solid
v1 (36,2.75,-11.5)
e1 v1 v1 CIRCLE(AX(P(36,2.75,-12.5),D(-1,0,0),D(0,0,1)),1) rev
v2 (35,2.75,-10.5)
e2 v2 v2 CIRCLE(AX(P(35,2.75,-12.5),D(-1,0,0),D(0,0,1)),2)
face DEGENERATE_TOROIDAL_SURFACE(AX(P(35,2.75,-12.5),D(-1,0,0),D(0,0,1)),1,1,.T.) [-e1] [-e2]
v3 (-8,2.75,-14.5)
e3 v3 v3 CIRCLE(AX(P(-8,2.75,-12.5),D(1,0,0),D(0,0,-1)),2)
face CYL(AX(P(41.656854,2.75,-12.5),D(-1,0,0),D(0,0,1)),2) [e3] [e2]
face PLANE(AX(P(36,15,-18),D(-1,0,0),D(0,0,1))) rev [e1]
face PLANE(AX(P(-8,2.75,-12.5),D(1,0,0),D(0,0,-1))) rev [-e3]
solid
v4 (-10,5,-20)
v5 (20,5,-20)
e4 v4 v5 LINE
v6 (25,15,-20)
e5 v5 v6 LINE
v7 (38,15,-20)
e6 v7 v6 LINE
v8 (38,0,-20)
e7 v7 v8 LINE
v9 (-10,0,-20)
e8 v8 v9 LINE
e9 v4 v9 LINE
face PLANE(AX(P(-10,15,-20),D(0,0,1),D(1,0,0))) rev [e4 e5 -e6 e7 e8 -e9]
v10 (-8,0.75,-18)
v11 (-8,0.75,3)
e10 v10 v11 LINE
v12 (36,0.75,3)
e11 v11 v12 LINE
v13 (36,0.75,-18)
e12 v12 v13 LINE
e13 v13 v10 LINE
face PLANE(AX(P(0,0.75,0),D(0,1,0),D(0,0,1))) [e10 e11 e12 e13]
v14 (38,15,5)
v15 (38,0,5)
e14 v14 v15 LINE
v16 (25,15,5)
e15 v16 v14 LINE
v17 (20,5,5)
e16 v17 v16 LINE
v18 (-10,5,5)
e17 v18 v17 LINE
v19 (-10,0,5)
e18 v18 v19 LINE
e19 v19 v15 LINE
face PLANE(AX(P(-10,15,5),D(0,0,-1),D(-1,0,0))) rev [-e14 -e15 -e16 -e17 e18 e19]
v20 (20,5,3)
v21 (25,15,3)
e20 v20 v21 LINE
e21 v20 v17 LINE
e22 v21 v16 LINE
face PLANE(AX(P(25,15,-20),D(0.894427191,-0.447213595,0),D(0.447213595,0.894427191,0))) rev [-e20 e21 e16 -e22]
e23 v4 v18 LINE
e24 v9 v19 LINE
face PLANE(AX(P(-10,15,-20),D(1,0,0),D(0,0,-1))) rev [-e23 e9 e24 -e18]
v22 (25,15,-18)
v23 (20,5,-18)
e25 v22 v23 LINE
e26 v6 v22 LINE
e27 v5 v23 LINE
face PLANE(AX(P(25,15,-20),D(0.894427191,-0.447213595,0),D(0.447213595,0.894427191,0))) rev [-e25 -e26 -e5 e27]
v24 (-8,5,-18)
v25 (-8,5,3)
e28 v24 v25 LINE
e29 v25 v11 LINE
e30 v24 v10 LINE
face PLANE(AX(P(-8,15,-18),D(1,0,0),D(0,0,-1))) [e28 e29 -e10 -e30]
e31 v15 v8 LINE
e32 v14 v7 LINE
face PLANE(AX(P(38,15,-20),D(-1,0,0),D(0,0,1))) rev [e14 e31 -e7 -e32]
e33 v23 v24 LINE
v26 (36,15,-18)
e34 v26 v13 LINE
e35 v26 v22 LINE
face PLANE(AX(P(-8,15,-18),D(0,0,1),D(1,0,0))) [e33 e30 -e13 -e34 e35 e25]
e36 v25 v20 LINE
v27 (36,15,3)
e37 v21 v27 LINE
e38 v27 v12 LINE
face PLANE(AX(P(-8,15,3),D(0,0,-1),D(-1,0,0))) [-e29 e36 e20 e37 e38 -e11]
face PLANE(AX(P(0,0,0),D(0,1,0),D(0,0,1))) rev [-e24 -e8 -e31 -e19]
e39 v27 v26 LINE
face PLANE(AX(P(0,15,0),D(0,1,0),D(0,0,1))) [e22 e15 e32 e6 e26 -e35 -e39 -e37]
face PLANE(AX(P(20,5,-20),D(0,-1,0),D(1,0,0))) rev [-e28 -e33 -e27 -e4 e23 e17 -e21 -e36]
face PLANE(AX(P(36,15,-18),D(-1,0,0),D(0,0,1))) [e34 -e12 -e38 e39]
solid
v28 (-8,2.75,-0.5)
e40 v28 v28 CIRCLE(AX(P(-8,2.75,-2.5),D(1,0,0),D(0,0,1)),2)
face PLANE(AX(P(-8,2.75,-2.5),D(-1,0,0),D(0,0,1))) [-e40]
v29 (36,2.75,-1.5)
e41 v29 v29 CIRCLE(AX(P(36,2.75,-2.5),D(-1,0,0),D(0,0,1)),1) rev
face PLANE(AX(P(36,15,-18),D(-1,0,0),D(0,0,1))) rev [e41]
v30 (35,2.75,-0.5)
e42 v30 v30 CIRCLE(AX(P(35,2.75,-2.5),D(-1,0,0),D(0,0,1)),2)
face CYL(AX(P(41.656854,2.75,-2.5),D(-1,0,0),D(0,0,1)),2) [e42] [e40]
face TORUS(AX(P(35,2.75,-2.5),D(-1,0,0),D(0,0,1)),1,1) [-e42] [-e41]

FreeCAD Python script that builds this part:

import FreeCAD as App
import Part
import Sketcher

V = App.Vector
Q = App.Units.Quantity


def edges_at(feature, points):
    """Names of the edges that pass closest to the given points."""
    edges = feature.Shape.Edges
    near = lambda p: min(range(len(edges)), key=lambda i: edges[i].distToShape(Part.Vertex(*p))[0])
    return sorted({f"Edge{near(p) + 1}" for p in points})


def add_polygon(sketch, points):
    """Adds a closed chain of lines whose ends are joined by coincident constraints."""
    first, n = sketch.GeometryCount, len(points)
    for a, b in zip(points, points[1:] + points[:1]):
        sketch.addGeometry(Part.LineSegment(App.Vector(*a, 0), App.Vector(*b, 0)), False)
    for i in range(n):
        sketch.addConstraint(Sketcher.Constraint("Coincident", first + i, 2, first + (i + 1) % n, 1))

doc = App.newDocument("Part")
params = doc.addObject("Spreadsheet::Sheet", "Params")
for row, (alias, value) in enumerate([
    ("sketch1_width", "48 mm"),
    ("sketch1_height", "25 mm"),
    ("pad1_length", "15 mm"),
    ("sketch2_width", "35 mm"),
    ("sketch2_width2", "30 mm"),
    ("sketch2_height", "10 mm"),
    ("sketch3_width", "44 mm"),
    ("sketch3_height", "21 mm"),
    ("sketch4_diameter", "4 mm"),
    ("pad2_length", "44 mm"),
    ("fillet_radius", "1 mm"),
    ("sketch5_diameter", "4 mm"),
    ("pad3_length", "44 mm"),
    ("fillet2_radius", "1 mm"),
], start=1):
    params.set(f"A{row}", alias)
    params.set(f"B{row}", "=" + value)
    params.setAlias(f"B{row}", alias)

body = doc.addObject("PartDesign::Body", "Body")

# Sketch on XZ plane
sketch1 = doc.addObject("Sketcher::SketchObject", "Sketch")
body.addObject(sketch1)
sketch1.AttachmentSupport = (doc.XZ_Plane, [""])
sketch1.MapMode = "FlatFace"
add_polygon(sketch1, [(-10, -20), (-10, 5), (38, 5), (38, -20)])  # lines 0-3
sketch1.addConstraint(Sketcher.Constraint("Vertical", 0))
sketch1.addConstraint(Sketcher.Constraint("Horizontal", 1))
sketch1.addConstraint(Sketcher.Constraint("Vertical", 2))
sketch1.addConstraint(Sketcher.Constraint("Horizontal", 3))
sketch1.addConstraint(Sketcher.Constraint("DistanceX", 1, 1, 1, 2, Q("48 mm")))
sketch1.addConstraint(Sketcher.Constraint("DistanceY", 0, 1, 0, 2, Q("25 mm")))
sketch1.addConstraint(Sketcher.Constraint("DistanceX", 0, 2, -1, 1, Q("10 mm")))
sketch1.addConstraint(Sketcher.Constraint("DistanceY", -1, 1, 0, 2, Q("5 mm")))
sketch1.setExpression("Constraints[8]", "Params.sketch1_width")
sketch1.setExpression("Constraints[9]", "Params.sketch1_height")
pad1 = doc.addObject("PartDesign::Pad", "Pad")
body.addObject(pad1)
pad1.Profile = sketch1
pad1.setExpression("Length", "Params.pad1_length")
pad1.Reversed = True

# Sketch on XY plane
sketch2 = doc.addObject("Sketcher::SketchObject", "Sketch001")
body.addObject(sketch2)
sketch2.AttachmentSupport = (doc.XY_Plane, [""])
sketch2.MapMode = "FlatFace"
sketch2.AttachmentOffset = App.Placement(V(0, 0, 5), App.Rotation())
add_polygon(sketch2, [(20, 5), (25, 15), (-10, 15), (-10, 5)])  # lines 0-3
sketch2.addConstraint(Sketcher.Constraint("Horizontal", 1))
sketch2.addConstraint(Sketcher.Constraint("Vertical", 2))
sketch2.addConstraint(Sketcher.Constraint("Horizontal", 3))
sketch2.addConstraint(Sketcher.Constraint("DistanceX", 1, 2, 1, 1, Q("35 mm")))
sketch2.addConstraint(Sketcher.Constraint("DistanceX", 3, 1, 3, 2, Q("30 mm")))
sketch2.addConstraint(Sketcher.Constraint("DistanceY", 2, 2, 2, 1, Q("10 mm")))
sketch2.addConstraint(Sketcher.Constraint("DistanceX", -1, 1, 0, 2, Q("25 mm")))
sketch2.addConstraint(Sketcher.Constraint("DistanceY", -1, 1, 0, 2, Q("15 mm")))
sketch2.setExpression("Constraints[7]", "Params.sketch2_width")
sketch2.setExpression("Constraints[8]", "Params.sketch2_width2")
sketch2.setExpression("Constraints[9]", "Params.sketch2_height")
pocket1 = doc.addObject("PartDesign::Pocket", "Pocket")
body.addObject(pocket1)
pocket1.Profile = sketch2
pocket1.Type = "ThroughAll"

# Sketch on XZ plane
sketch3 = doc.addObject("Sketcher::SketchObject", "Sketch002")
body.addObject(sketch3)
sketch3.AttachmentSupport = (doc.XZ_Plane, [""])
sketch3.MapMode = "FlatFace"
sketch3.AttachmentOffset = App.Placement(V(0, 0, -0.75), App.Rotation())
add_polygon(sketch3, [(-8, -18), (-8, 3), (36, 3), (36, -18)])  # lines 0-3
sketch3.addConstraint(Sketcher.Constraint("Vertical", 0))
sketch3.addConstraint(Sketcher.Constraint("Horizontal", 1))
sketch3.addConstraint(Sketcher.Constraint("Vertical", 2))
sketch3.addConstraint(Sketcher.Constraint("Horizontal", 3))
sketch3.addConstraint(Sketcher.Constraint("DistanceX", 1, 1, 1, 2, Q("44 mm")))
sketch3.addConstraint(Sketcher.Constraint("DistanceY", 0, 1, 0, 2, Q("21 mm")))
sketch3.addConstraint(Sketcher.Constraint("DistanceX", 0, 2, -1, 1, Q("8 mm")))
sketch3.addConstraint(Sketcher.Constraint("DistanceY", -1, 1, 0, 2, Q("3 mm")))
sketch3.setExpression("Constraints[8]", "Params.sketch3_width")
sketch3.setExpression("Constraints[9]", "Params.sketch3_height")
pocket2 = doc.addObject("PartDesign::Pocket", "Pocket001")
body.addObject(pocket2)
pocket2.Profile = sketch3
pocket2.Type = "ThroughAll"
body2 = doc.addObject("PartDesign::Body", "Body001")

# Sketch on YZ plane
sketch4 = doc.addObject("Sketcher::SketchObject", "Sketch003")
body2.addObject(sketch4)
sketch4.AttachmentSupport = (doc.getObject("YZ_Plane001"), [""])
sketch4.MapMode = "FlatFace"
sketch4.AttachmentOffset = App.Placement(V(0, 0, -8), App.Rotation())
sketch4.addGeometry(Part.Circle(V(2.8, -12.5, 0), V(0, 0, 1), 2), False)
sketch4.addConstraint(Sketcher.Constraint("Diameter", 0, Q("4 mm")))
sketch4.addConstraint(Sketcher.Constraint("DistanceY", 0, 3, -1, 1, Q("12.5 mm")))
sketch4.addConstraint(Sketcher.Constraint("DistanceX", -1, 1, 0, 3, Q("2.75 mm")))
sketch4.setExpression("Constraints[0]", "Params.sketch4_diameter")
pad2 = doc.addObject("PartDesign::Pad", "Pad001")
body2.addObject(pad2)
pad2.Profile = sketch4
pad2.setExpression("Length", "Params.pad2_length")
doc.recompute()

fillet = doc.addObject("PartDesign::Fillet", "Fillet")
body2.addObject(fillet)
fillet.Base = (pad2, edges_at(pad2, [(36, 2.75, -10.5)]))
fillet.setExpression("Radius", "Params.fillet_radius")
body3 = doc.addObject("PartDesign::Body", "Body002")

# Sketch on YZ plane
sketch5 = doc.addObject("Sketcher::SketchObject", "Sketch004")
body3.addObject(sketch5)
sketch5.AttachmentSupport = (doc.getObject("YZ_Plane002"), [""])
sketch5.MapMode = "FlatFace"
sketch5.AttachmentOffset = App.Placement(V(0, 0, -8), App.Rotation())
sketch5.addGeometry(Part.Circle(V(2.8, -2.5, 0), V(0, 0, 1), 2), False)
sketch5.addConstraint(Sketcher.Constraint("Diameter", 0, Q("4 mm")))
sketch5.addConstraint(Sketcher.Constraint("DistanceY", 0, 3, -1, 1, Q("2.5 mm")))
sketch5.addConstraint(Sketcher.Constraint("DistanceX", -1, 1, 0, 3, Q("2.75 mm")))
sketch5.setExpression("Constraints[0]", "Params.sketch5_diameter")
pad3 = doc.addObject("PartDesign::Pad", "Pad002")
body3.addObject(pad3)
pad3.Profile = sketch5
pad3.setExpression("Length", "Params.pad3_length")
doc.recompute()

fillet2 = doc.addObject("PartDesign::Fillet", "Fillet001")
body3.addObject(fillet2)
fillet2.Base = (pad3, edges_at(pad3, [(36, 2.75, -0.5)]))
fillet2.setExpression("Radius", "Params.fillet2_radius")

doc.recompute()
